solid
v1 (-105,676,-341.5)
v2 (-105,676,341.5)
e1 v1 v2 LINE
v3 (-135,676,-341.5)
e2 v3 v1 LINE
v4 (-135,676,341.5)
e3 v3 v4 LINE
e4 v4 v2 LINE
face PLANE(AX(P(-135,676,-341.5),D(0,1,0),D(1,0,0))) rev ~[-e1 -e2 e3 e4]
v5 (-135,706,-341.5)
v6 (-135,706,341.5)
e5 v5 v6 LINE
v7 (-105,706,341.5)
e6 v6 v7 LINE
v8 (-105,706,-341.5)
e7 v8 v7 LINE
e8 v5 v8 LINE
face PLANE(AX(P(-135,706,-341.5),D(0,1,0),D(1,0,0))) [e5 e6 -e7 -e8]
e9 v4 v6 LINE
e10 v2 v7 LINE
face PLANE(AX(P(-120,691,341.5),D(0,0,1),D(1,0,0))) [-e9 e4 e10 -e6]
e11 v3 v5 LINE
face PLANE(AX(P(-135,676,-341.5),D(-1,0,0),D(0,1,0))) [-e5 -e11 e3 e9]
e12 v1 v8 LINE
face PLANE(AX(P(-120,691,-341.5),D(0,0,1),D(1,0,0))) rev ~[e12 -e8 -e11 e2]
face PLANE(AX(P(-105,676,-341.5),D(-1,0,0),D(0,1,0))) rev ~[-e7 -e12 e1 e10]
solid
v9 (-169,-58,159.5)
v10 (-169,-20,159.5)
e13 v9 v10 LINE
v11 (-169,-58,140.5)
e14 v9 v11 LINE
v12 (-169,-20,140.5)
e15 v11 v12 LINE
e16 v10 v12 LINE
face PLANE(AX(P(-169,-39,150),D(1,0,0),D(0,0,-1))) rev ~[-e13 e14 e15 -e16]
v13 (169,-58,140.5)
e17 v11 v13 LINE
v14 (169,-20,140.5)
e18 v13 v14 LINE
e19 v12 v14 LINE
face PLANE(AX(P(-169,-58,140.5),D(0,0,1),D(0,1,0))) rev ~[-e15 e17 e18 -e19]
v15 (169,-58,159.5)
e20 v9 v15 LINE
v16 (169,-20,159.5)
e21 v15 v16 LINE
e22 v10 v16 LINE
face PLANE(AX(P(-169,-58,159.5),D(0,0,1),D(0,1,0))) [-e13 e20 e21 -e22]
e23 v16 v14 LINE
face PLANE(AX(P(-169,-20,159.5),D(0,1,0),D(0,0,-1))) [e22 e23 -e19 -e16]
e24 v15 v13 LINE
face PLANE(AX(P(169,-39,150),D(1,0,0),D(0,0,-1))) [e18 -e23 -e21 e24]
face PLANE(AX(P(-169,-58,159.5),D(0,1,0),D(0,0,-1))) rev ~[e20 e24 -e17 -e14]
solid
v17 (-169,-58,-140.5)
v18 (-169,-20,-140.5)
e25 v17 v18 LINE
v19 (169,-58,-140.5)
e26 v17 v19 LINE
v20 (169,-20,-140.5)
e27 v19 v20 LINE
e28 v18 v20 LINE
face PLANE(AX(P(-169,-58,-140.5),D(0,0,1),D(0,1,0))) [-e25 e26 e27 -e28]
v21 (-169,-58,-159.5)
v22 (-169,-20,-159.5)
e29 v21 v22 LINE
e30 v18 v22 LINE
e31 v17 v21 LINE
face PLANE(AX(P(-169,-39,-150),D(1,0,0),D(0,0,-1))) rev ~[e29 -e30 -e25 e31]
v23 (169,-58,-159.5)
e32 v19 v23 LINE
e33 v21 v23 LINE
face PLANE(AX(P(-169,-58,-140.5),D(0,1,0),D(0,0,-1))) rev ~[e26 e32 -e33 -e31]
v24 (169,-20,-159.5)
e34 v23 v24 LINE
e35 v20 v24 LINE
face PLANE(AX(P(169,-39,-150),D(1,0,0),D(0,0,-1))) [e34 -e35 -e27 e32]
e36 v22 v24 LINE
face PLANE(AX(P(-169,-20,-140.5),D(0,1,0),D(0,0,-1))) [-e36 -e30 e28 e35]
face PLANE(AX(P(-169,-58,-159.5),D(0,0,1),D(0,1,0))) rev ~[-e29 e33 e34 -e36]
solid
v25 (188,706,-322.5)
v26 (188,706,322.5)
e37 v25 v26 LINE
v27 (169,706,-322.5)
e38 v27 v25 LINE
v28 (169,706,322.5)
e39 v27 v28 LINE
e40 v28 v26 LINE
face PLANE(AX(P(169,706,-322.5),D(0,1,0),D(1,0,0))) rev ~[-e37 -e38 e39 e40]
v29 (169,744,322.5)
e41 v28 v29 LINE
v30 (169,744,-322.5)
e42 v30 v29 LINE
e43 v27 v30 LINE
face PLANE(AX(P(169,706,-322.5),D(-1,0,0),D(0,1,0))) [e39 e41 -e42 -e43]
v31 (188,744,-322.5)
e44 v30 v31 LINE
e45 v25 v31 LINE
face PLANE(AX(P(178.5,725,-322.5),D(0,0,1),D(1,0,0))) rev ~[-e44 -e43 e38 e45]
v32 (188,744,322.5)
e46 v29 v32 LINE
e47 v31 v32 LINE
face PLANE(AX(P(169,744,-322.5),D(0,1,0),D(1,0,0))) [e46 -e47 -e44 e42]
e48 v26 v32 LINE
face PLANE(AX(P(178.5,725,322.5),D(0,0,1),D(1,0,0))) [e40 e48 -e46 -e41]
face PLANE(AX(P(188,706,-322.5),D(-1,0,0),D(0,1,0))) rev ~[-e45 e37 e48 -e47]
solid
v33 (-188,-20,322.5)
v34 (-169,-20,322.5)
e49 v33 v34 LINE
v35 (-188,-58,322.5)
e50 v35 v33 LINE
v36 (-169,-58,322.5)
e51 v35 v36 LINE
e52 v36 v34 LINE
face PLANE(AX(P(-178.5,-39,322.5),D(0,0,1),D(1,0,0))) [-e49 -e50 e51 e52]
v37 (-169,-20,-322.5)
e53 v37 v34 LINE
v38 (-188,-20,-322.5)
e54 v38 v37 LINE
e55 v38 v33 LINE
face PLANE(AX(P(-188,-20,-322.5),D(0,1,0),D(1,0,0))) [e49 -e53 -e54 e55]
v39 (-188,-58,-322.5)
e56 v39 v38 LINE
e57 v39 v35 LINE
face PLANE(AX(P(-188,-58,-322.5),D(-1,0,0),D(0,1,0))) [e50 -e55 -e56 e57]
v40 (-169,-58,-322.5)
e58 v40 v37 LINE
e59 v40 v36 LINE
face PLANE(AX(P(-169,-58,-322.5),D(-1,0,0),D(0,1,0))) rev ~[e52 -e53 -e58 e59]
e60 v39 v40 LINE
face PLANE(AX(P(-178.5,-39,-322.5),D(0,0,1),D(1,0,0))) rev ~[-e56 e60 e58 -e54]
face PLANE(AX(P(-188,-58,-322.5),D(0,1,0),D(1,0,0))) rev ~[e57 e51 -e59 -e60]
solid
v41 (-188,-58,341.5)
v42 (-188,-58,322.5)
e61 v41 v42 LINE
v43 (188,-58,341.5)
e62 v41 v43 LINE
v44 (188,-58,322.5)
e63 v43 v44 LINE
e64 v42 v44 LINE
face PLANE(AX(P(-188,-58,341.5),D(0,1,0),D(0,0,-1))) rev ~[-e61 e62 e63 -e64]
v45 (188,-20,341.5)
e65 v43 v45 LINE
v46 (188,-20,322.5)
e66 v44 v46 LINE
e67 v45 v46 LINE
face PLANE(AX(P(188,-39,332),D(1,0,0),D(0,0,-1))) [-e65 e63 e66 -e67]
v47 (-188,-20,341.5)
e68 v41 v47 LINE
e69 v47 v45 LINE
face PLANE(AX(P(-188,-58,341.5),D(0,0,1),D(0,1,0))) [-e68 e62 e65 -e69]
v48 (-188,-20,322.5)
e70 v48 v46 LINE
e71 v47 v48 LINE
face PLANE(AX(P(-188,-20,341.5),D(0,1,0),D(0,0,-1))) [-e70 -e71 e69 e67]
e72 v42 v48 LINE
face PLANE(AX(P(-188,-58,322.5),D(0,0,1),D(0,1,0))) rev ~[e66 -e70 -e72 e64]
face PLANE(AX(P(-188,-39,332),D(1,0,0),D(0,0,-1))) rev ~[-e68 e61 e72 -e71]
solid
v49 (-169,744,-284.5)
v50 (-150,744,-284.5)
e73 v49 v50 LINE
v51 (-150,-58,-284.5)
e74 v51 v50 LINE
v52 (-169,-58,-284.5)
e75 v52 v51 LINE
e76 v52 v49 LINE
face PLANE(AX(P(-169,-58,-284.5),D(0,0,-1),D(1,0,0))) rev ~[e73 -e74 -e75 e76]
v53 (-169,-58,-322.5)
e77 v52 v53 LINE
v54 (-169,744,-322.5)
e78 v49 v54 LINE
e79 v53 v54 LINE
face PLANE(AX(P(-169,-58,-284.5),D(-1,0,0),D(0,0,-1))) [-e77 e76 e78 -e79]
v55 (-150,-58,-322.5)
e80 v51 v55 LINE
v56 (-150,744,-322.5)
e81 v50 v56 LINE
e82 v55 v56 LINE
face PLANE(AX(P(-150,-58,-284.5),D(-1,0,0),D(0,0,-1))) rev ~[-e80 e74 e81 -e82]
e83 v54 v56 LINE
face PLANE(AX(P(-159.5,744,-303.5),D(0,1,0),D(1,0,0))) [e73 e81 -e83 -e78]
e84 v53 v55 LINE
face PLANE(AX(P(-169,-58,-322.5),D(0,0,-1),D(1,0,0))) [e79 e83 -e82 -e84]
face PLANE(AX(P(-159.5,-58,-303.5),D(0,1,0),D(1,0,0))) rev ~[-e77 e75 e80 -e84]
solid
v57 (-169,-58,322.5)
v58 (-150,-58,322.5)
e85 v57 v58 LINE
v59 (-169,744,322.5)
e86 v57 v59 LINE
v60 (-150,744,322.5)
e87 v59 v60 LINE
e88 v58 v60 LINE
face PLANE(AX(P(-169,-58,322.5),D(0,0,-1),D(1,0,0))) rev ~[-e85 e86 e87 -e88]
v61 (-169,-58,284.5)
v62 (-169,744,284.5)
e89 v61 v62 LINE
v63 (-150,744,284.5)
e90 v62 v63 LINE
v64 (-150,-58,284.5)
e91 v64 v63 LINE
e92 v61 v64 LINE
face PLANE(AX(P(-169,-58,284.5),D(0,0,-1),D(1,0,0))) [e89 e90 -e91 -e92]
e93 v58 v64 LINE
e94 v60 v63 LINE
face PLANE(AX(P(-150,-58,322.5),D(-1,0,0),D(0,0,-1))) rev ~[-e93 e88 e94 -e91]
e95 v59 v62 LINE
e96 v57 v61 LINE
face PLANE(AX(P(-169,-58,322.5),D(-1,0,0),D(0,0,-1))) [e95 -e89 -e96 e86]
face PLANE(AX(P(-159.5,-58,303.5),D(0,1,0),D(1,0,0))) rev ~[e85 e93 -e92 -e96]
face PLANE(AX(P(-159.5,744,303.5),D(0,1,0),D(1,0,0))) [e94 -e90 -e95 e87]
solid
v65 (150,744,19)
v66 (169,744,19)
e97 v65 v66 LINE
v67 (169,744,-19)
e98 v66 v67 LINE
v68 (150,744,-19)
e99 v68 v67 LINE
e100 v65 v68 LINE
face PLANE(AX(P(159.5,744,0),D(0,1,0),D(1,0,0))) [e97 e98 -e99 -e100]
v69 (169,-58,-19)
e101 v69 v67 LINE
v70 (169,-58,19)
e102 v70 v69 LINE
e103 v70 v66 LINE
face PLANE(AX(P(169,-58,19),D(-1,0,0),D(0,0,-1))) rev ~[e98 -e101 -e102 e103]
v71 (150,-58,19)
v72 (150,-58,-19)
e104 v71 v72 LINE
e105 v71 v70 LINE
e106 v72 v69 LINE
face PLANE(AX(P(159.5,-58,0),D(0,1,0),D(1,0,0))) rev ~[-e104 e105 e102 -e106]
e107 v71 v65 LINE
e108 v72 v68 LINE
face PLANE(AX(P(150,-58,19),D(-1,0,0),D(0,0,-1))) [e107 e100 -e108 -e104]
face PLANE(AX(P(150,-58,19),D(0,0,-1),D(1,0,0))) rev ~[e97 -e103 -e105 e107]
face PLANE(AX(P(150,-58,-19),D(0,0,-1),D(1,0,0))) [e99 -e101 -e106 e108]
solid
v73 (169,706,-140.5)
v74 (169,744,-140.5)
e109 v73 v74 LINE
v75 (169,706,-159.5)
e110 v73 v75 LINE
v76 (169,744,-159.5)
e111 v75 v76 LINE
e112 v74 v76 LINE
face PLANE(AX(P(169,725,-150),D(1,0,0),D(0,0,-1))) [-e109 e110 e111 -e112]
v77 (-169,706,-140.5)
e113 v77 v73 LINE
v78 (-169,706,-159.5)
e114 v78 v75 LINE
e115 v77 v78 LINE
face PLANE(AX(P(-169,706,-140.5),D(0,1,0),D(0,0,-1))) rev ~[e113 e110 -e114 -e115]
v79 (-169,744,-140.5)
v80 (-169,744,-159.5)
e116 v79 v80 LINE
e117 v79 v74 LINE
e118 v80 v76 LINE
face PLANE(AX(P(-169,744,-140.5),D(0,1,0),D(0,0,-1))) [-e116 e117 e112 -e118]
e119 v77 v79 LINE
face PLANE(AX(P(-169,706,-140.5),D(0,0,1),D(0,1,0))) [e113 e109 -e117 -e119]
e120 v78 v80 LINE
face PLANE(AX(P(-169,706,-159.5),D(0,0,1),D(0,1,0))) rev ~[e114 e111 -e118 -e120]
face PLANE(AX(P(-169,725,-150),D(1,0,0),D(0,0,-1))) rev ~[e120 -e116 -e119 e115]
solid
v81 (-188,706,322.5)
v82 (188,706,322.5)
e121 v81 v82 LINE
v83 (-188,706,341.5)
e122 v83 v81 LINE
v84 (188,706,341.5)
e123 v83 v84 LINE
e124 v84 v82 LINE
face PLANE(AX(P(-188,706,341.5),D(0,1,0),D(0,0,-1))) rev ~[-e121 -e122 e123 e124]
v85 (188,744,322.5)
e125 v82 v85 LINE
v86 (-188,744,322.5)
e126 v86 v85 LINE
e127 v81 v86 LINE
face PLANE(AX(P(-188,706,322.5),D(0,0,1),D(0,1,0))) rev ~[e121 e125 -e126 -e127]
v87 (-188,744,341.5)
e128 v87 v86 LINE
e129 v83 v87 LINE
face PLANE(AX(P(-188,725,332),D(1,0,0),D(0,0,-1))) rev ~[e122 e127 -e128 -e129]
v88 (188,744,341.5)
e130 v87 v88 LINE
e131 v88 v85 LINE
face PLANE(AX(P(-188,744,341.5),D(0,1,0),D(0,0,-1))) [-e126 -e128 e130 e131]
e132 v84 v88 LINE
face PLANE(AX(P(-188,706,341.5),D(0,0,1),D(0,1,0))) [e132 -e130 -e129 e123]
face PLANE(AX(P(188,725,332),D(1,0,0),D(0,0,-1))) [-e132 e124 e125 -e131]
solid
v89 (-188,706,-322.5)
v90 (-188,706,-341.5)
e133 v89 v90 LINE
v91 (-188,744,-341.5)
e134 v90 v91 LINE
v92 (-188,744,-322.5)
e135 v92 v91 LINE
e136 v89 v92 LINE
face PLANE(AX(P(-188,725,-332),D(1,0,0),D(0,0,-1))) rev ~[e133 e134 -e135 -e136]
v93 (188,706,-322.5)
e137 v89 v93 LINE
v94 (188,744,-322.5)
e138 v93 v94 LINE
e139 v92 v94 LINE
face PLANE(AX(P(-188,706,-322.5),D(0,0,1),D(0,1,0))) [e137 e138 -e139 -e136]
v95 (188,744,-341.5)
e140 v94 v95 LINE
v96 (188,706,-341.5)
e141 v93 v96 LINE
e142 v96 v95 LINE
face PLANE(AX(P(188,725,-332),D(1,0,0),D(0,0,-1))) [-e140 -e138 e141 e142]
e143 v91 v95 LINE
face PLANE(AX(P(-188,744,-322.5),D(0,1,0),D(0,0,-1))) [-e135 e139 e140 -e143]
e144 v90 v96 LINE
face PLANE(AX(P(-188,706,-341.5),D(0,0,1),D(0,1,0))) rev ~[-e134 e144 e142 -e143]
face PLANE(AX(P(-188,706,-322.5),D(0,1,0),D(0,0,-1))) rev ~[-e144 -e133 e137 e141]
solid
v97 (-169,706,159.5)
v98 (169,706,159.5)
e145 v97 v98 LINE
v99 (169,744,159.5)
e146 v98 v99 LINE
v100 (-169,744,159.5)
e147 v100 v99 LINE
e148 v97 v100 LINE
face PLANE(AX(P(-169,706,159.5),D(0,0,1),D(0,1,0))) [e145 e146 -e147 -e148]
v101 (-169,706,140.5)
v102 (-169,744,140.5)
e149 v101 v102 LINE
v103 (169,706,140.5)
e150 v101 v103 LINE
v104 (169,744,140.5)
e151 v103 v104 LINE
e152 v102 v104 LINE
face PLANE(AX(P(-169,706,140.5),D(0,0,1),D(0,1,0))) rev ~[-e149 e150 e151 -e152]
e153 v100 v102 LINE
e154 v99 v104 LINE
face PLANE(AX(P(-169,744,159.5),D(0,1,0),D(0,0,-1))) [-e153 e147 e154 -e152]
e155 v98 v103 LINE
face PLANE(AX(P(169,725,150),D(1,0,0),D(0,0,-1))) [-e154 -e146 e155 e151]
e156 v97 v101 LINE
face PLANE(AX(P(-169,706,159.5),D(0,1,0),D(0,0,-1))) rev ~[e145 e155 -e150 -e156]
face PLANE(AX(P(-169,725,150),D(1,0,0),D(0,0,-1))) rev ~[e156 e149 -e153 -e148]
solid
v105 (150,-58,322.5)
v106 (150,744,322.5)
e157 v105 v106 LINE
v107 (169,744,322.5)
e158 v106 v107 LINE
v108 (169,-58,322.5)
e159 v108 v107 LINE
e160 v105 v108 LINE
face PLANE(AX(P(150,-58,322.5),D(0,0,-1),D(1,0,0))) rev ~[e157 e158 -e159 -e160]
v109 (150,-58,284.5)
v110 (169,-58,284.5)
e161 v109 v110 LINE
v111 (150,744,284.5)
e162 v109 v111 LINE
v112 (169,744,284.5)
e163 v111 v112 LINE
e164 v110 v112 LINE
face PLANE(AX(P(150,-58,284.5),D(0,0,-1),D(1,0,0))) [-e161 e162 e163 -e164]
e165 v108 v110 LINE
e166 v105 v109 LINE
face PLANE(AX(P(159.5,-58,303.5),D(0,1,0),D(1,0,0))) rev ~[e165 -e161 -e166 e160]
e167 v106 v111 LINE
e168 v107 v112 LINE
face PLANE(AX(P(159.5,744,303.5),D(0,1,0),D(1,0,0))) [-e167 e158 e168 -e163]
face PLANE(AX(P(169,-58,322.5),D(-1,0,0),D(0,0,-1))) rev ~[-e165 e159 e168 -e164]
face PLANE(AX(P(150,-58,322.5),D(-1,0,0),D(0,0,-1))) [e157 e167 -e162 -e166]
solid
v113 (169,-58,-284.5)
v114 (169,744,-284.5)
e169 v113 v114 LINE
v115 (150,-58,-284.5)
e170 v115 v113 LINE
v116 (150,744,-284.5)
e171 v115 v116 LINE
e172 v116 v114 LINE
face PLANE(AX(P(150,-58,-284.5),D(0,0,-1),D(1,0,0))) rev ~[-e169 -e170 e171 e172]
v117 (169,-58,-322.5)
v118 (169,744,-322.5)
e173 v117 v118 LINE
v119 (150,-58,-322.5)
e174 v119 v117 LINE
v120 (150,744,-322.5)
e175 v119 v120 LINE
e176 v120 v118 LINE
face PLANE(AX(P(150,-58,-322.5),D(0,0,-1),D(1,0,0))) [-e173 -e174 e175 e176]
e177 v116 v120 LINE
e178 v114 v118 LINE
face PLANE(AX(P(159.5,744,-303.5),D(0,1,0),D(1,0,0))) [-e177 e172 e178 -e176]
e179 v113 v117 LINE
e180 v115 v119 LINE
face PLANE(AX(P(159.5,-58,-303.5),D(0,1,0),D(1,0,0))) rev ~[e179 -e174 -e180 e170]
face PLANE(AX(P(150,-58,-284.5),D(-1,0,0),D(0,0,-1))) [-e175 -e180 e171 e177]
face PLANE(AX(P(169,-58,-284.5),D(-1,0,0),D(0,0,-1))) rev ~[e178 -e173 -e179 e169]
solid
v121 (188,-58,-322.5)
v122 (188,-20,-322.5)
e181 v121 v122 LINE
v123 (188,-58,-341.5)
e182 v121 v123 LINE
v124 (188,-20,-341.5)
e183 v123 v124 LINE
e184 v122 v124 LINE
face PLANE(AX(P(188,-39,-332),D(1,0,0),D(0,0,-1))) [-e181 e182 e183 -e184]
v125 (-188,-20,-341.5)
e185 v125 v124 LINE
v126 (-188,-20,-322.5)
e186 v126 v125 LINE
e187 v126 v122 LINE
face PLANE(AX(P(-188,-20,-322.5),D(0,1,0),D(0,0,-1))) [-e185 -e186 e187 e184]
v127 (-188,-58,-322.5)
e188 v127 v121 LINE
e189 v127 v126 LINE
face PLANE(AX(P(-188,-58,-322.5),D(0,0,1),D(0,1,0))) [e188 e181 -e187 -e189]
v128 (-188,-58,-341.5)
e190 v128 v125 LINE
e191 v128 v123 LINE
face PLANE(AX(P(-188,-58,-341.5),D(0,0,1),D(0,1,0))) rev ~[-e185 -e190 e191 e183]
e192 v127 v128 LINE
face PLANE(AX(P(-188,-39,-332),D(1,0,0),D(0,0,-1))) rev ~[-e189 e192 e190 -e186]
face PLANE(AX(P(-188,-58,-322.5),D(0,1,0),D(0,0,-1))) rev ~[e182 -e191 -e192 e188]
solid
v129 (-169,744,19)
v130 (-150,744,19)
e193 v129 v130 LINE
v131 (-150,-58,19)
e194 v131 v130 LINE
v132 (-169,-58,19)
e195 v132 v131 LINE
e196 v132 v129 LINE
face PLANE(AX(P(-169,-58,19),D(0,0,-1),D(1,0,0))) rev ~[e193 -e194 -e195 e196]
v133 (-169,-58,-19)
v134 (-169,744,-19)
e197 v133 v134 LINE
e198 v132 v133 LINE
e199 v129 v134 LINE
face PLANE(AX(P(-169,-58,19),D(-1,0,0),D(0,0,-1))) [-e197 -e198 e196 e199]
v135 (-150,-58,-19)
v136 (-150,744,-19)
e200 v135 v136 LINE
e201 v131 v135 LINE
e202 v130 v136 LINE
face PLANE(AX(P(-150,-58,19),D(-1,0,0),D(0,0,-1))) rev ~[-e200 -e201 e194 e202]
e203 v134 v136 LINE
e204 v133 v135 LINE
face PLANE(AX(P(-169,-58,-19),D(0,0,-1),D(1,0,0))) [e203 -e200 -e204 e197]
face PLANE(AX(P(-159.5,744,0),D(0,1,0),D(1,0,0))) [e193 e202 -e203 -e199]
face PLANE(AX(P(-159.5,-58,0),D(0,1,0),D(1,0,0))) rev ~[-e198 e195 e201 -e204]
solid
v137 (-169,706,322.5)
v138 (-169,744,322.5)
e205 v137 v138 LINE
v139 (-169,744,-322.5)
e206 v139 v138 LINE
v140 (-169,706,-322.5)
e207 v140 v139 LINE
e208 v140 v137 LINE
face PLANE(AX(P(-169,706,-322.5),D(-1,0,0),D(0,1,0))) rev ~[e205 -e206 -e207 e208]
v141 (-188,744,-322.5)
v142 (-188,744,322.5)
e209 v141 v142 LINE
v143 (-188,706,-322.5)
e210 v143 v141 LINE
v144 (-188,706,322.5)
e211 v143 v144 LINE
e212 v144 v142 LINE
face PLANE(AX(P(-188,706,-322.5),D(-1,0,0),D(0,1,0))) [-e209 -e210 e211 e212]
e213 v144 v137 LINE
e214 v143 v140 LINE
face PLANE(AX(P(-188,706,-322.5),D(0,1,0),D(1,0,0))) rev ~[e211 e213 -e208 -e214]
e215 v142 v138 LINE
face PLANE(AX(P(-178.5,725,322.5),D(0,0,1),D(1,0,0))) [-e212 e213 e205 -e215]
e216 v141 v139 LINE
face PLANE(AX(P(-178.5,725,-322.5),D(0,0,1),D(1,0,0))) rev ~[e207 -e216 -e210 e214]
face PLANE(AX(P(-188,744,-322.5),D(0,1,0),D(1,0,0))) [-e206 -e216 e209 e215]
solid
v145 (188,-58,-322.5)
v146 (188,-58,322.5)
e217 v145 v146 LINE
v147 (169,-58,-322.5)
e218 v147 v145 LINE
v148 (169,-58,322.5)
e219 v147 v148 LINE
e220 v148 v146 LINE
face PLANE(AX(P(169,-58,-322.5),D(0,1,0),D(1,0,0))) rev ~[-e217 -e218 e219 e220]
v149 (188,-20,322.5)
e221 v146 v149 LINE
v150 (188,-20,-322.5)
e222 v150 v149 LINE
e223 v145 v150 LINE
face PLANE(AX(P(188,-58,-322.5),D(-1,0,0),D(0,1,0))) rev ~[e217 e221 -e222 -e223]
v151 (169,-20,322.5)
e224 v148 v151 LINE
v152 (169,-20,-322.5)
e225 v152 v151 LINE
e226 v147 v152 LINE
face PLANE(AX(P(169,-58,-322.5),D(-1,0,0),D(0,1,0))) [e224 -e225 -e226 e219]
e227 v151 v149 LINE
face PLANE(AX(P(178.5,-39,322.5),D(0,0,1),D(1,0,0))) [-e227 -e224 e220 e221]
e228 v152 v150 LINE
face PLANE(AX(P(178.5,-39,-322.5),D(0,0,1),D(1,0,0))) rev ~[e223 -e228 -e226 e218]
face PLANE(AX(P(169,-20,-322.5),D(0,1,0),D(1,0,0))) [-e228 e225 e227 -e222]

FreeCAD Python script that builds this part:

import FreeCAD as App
import Part
import Sketcher


def add_polygon(sketch, points):
    """Adds a closed chain of lines whose ends are joined by coincident constraints."""
    first, n = sketch.GeometryCount, len(points)
    for a, b in zip(points, points[1:] + points[:1]):
        sketch.addGeometry(Part.LineSegment(App.Vector(*a, 0), App.Vector(*b, 0)), False)
    for i in range(n):
        sketch.addConstraint(Sketcher.Constraint("Coincident", first + i, 2, first + (i + 1) % n, 1))

doc = App.newDocument("Part")
body = doc.addObject("PartDesign::Body", "Body")

# Sketch on XY plane
sketch1 = doc.addObject("Sketcher::SketchObject", "Sketch")
body.addObject(sketch1)
sketch1.AttachmentSupport = (doc.XY_Plane, [""])
sketch1.MapMode = "FlatFace"
add_polygon(sketch1, [(-188, -20), (-188, -58), (-169, -58), (-169, -20)])  # lines 0-3
sketch1.addConstraint(Sketcher.Constraint("Vertical", 0))
sketch1.addConstraint(Sketcher.Constraint("Horizontal", 1))
sketch1.addConstraint(Sketcher.Constraint("Vertical", 2))
sketch1.addConstraint(Sketcher.Constraint("Horizontal", 3))
sketch1.addConstraint(Sketcher.Constraint("DistanceX", 1, 1, 1, 2, 19.0))
sketch1.addConstraint(Sketcher.Constraint("DistanceY", 0, 2, 0, 1, 38.0))
sketch1.addConstraint(Sketcher.Constraint("DistanceX", 0, 2, -1, 1, 188.0))
sketch1.addConstraint(Sketcher.Constraint("DistanceY", 0, 2, -1, 1, 58.0))
pad1 = doc.addObject("PartDesign::Pad", "Pad")
body.addObject(pad1)
pad1.Profile = sketch1
pad1.Type = "TwoLengths"
pad1.Length = 322.5
pad1.Length2 = 322.5
body2 = doc.addObject("PartDesign::Body", "Body001")

# Sketch on XY plane
sketch2 = doc.addObject("Sketcher::SketchObject", "Sketch001")
body2.addObject(sketch2)
sketch2.AttachmentSupport = (doc.getObject("XY_Plane001"), [""])
sketch2.MapMode = "FlatFace"
add_polygon(sketch2, [(169, -20), (169, -58), (188, -58), (188, -20)])  # lines 0-3
sketch2.addConstraint(Sketcher.Constraint("Vertical", 0))
sketch2.addConstraint(Sketcher.Constraint("Horizontal", 1))
sketch2.addConstraint(Sketcher.Constraint("Vertical", 2))
sketch2.addConstraint(Sketcher.Constraint("Horizontal", 3))
sketch2.addConstraint(Sketcher.Constraint("DistanceX", 1, 1, 1, 2, 19.0))
sketch2.addConstraint(Sketcher.Constraint("DistanceY", 0, 2, 0, 1, 38.0))
sketch2.addConstraint(Sketcher.Constraint("DistanceX", -1, 1, 0, 2, 169.0))
sketch2.addConstraint(Sketcher.Constraint("DistanceY", 0, 2, -1, 1, 58.0))
pad2 = doc.addObject("PartDesign::Pad", "Pad001")
body2.addObject(pad2)
pad2.Profile = sketch2
pad2.Type = "TwoLengths"
pad2.Length = 322.5
pad2.Length2 = 322.5
body3 = doc.addObject("PartDesign::Body", "Body002")

# Sketch on XY plane
sketch3 = doc.addObject("Sketcher::SketchObject", "Sketch002")
body3.addObject(sketch3)
sketch3.AttachmentSupport = (doc.getObject("XY_Plane002"), [""])
sketch3.MapMode = "FlatFace"
add_polygon(sketch3, [(169, 744), (169, 706), (188, 706), (188, 744)])  # lines 0-3
sketch3.addConstraint(Sketcher.Constraint("Vertical", 0))
sketch3.addConstraint(Sketcher.Constraint("Horizontal", 1))
sketch3.addConstraint(Sketcher.Constraint("Vertical", 2))
sketch3.addConstraint(Sketcher.Constraint("Horizontal", 3))
sketch3.addConstraint(Sketcher.Constraint("DistanceX", 1, 1, 1, 2, 19.0))
sketch3.addConstraint(Sketcher.Constraint("DistanceY", 0, 2, 0, 1, 38.0))
sketch3.addConstraint(Sketcher.Constraint("DistanceX", -1, 1, 0, 2, 169.0))
sketch3.addConstraint(Sketcher.Constraint("DistanceY", -1, 1, 0, 2, 706.0))
pad3 = doc.addObject("PartDesign::Pad", "Pad002")
body3.addObject(pad3)
pad3.Profile = sketch3
pad3.Type = "TwoLengths"
pad3.Length = 322.5
pad3.Length2 = 322.5
body4 = doc.addObject("PartDesign::Body", "Body003")

# Sketch on XY plane
sketch4 = doc.addObject("Sketcher::SketchObject", "Sketch003")
body4.addObject(sketch4)
sketch4.AttachmentSupport = (doc.getObject("XY_Plane003"), [""])
sketch4.MapMode = "FlatFace"
add_polygon(sketch4, [(-188, 744), (-188, 706), (-169, 706), (-169, 744)])  # lines 0-3
sketch4.addConstraint(Sketcher.Constraint("Vertical", 0))
sketch4.addConstraint(Sketcher.Constraint("Horizontal", 1))
sketch4.addConstraint(Sketcher.Constraint("Vertical", 2))
sketch4.addConstraint(Sketcher.Constraint("Horizontal", 3))
sketch4.addConstraint(Sketcher.Constraint("DistanceX", 1, 1, 1, 2, 19.0))
sketch4.addConstraint(Sketcher.Constraint("DistanceY", 0, 2, 0, 1, 38.0))
sketch4.addConstraint(Sketcher.Constraint("DistanceX", 0, 2, -1, 1, 188.0))
sketch4.addConstraint(Sketcher.Constraint("DistanceY", -1, 1, 0, 2, 706.0))
pad4 = doc.addObject("PartDesign::Pad", "Pad003")
body4.addObject(pad4)
pad4.Profile = sketch4
pad4.Type = "TwoLengths"
pad4.Length = 322.5
pad4.Length2 = 322.5
body5 = doc.addObject("PartDesign::Body", "Body004")

# Sketch on YZ plane
sketch5 = doc.addObject("Sketcher::SketchObject", "Sketch004")
body5.addObject(sketch5)
sketch5.AttachmentSupport = (doc.getObject("YZ_Plane004"), [""])
sketch5.MapMode = "FlatFace"
add_polygon(sketch5, [(-20, 341.5), (-58, 341.5), (-58, 322.5), (-20, 322.5)])  # lines 0-3
sketch5.addConstraint(Sketcher.Constraint("Horizontal", 0))
sketch5.addConstraint(Sketcher.Constraint("Vertical", 1))
sketch5.addConstraint(Sketcher.Constraint("Horizontal", 2))
sketch5.addConstraint(Sketcher.Constraint("Vertical", 3))
sketch5.addConstraint(Sketcher.Constraint("DistanceX", 0, 2, 0, 1, 38.0))
sketch5.addConstraint(Sketcher.Constraint("DistanceY", 1, 2, 1, 1, 19.0))
sketch5.addConstraint(Sketcher.Constraint("DistanceX", 0, 2, -1, 1, 58.0))
sketch5.addConstraint(Sketcher.Constraint("DistanceY", -1, 1, 0, 2, 341.5))
pad5 = doc.addObject("PartDesign::Pad", "Pad004")
body5.addObject(pad5)
pad5.Profile = sketch5
pad5.Type = "TwoLengths"
pad5.Length = 188
pad5.Length2 = 188
body6 = doc.addObject("PartDesign::Body", "Body005")

# Sketch on YZ plane
sketch6 = doc.addObject("Sketcher::SketchObject", "Sketch005")
body6.addObject(sketch6)
sketch6.AttachmentSupport = (doc.getObject("YZ_Plane005"), [""])
sketch6.MapMode = "FlatFace"
add_polygon(sketch6, [(744, 341.5), (706, 341.5), (706, 322.5), (744, 322.5)])  # lines 0-3
sketch6.addConstraint(Sketcher.Constraint("Horizontal", 0))
sketch6.addConstraint(Sketcher.Constraint("Vertical", 1))
sketch6.addConstraint(Sketcher.Constraint("Horizontal", 2))
sketch6.addConstraint(Sketcher.Constraint("Vertical", 3))
sketch6.addConstraint(Sketcher.Constraint("DistanceX", 0, 2, 0, 1, 38.0))
sketch6.addConstraint(Sketcher.Constraint("DistanceY", 1, 2, 1, 1, 19.0))
sketch6.addConstraint(Sketcher.Constraint("DistanceX", -1, 1, 0, 2, 706.0))
sketch6.addConstraint(Sketcher.Constraint("DistanceY", -1, 1, 0, 2, 341.5))
pad6 = doc.addObject("PartDesign::Pad", "Pad005")
body6.addObject(pad6)
pad6.Profile = sketch6
pad6.Type = "TwoLengths"
pad6.Length = 188
pad6.Length2 = 188
body7 = doc.addObject("PartDesign::Body", "Body006")

# Sketch on YZ plane
sketch7 = doc.addObject("Sketcher::SketchObject", "Sketch006")
body7.addObject(sketch7)
sketch7.AttachmentSupport = (doc.getObject("YZ_Plane006"), [""])
sketch7.MapMode = "FlatFace"
add_polygon(sketch7, [(744, -322.5), (706, -322.5), (706, -341.5), (744, -341.5)])  # lines 0-3
sketch7.addConstraint(Sketcher.Constraint("Horizontal", 0))
sketch7.addConstraint(Sketcher.Constraint("Vertical", 1))
sketch7.addConstraint(Sketcher.Constraint("Horizontal", 2))
sketch7.addConstraint(Sketcher.Constraint("Vertical", 3))
sketch7.addConstraint(Sketcher.Constraint("DistanceX", 0, 2, 0, 1, 38.0))
sketch7.addConstraint(Sketcher.Constraint("DistanceY", 1, 2, 1, 1, 19.0))
sketch7.addConstraint(Sketcher.Constraint("DistanceX", -1, 1, 0, 2, 706.0))
sketch7.addConstraint(Sketcher.Constraint("DistanceY", 0, 2, -1, 1, 322.5))
pad7 = doc.addObject("PartDesign::Pad", "Pad006")
body7.addObject(pad7)
pad7.Profile = sketch7
pad7.Type = "TwoLengths"
pad7.Length = 188
pad7.Length2 = 188
body8 = doc.addObject("PartDesign::Body", "Body007")

# Sketch on YZ plane
sketch8 = doc.addObject("Sketcher::SketchObject", "Sketch007")
body8.addObject(sketch8)
sketch8.AttachmentSupport = (doc.getObject("YZ_Plane007"), [""])
sketch8.MapMode = "FlatFace"
add_polygon(sketch8, [(-20, -322.5), (-58, -322.5), (-58, -341.5), (-20, -341.5)])  # lines 0-3
sketch8.addConstraint(Sketcher.Constraint("Horizontal", 0))
sketch8.addConstraint(Sketcher.Constraint("Vertical", 1))
sketch8.addConstraint(Sketcher.Constraint("Horizontal", 2))
sketch8.addConstraint(Sketcher.Constraint("Vertical", 3))
sketch8.addConstraint(Sketcher.Constraint("DistanceX", 0, 2, 0, 1, 38.0))
sketch8.addConstraint(Sketcher.Constraint("DistanceY", 1, 2, 1, 1, 19.0))
sketch8.addConstraint(Sketcher.Constraint("DistanceX", 0, 2, -1, 1, 58.0))
sketch8.addConstraint(Sketcher.Constraint("DistanceY", 0, 2, -1, 1, 322.5))
pad8 = doc.addObject("PartDesign::Pad", "Pad007")
body8.addObject(pad8)
pad8.Profile = sketch8
pad8.Type = "TwoLengths"
pad8.Length = 188
pad8.Length2 = 188
body9 = doc.addObject("PartDesign::Body", "Body008")

# Sketch on XZ plane
sketch9 = doc.addObject("Sketcher::SketchObject", "Sketch008")
body9.addObject(sketch9)
sketch9.AttachmentSupport = (doc.getObject("XZ_Plane008"), [""])
sketch9.MapMode = "FlatFace"
sketch9.AttachmentOffset = App.Placement(App.Vector(0, 0, 58), App.Rotation())
add_polygon(sketch9, [(-169, -322.5), (-169, -284.5), (-150, -284.5), (-150, -322.5)])  # lines 0-3
sketch9.addConstraint(Sketcher.Constraint("Vertical", 0))
sketch9.addConstraint(Sketcher.Constraint("Horizontal", 1))
sketch9.addConstraint(Sketcher.Constraint("Vertical", 2))
sketch9.addConstraint(Sketcher.Constraint("Horizontal", 3))
sketch9.addConstraint(Sketcher.Constraint("DistanceX", 1, 1, 1, 2, 19.0))
sketch9.addConstraint(Sketcher.Constraint("DistanceY", 0, 1, 0, 2, 38.0))
sketch9.addConstraint(Sketcher.Constraint("DistanceX", 0, 2, -1, 1, 169.0))
sketch9.addConstraint(Sketcher.Constraint("DistanceY", 0, 2, -1, 1, 284.5))
pad9 = doc.addObject("PartDesign::Pad", "Pad008")
body9.addObject(pad9)
pad9.Profile = sketch9
pad9.Length = 802
pad9.Reversed = True
body10 = doc.addObject("PartDesign::Body", "Body009")

# Sketch on XZ plane
sketch10 = doc.addObject("Sketcher::SketchObject", "Sketch009")
body10.addObject(sketch10)
sketch10.AttachmentSupport = (doc.getObject("XZ_Plane009"), [""])
sketch10.MapMode = "FlatFace"
sketch10.AttachmentOffset = App.Placement(App.Vector(0, 0, 58), App.Rotation())
add_polygon(sketch10, [(-169, 284.5), (-169, 322.5), (-150, 322.5), (-150, 284.5)])  # lines 0-3
sketch10.addConstraint(Sketcher.Constraint("Vertical", 0))
sketch10.addConstraint(Sketcher.Constraint("Horizontal", 1))
sketch10.addConstraint(Sketcher.Constraint("Vertical", 2))
sketch10.addConstraint(Sketcher.Constraint("Horizontal", 3))
sketch10.addConstraint(Sketcher.Constraint("DistanceX", 1, 1, 1, 2, 19.0))
sketch10.addConstraint(Sketcher.Constraint("DistanceY", 0, 1, 0, 2, 38.0))
sketch10.addConstraint(Sketcher.Constraint("DistanceX", 0, 2, -1, 1, 169.0))
sketch10.addConstraint(Sketcher.Constraint("DistanceY", -1, 1, 0, 2, 322.5))
pad10 = doc.addObject("PartDesign::Pad", "Pad009")
body10.addObject(pad10)
pad10.Profile = sketch10
pad10.Length = 802
pad10.Reversed = True
body11 = doc.addObject("PartDesign::Body", "Body010")

# Sketch on XZ plane
sketch11 = doc.addObject("Sketcher::SketchObject", "Sketch010")
body11.addObject(sketch11)
sketch11.AttachmentSupport = (doc.getObject("XZ_Plane010"), [""])
sketch11.MapMode = "FlatFace"
sketch11.AttachmentOffset = App.Placement(App.Vector(0, 0, 58), App.Rotation())
add_polygon(sketch11, [(150, -322.5), (150, -284.5), (169, -284.5), (169, -322.5)])  # lines 0-3
sketch11.addConstraint(Sketcher.Constraint("Vertical", 0))
sketch11.addConstraint(Sketcher.Constraint("Horizontal", 1))
sketch11.addConstraint(Sketcher.Constraint("Vertical", 2))
sketch11.addConstraint(Sketcher.Constraint("Horizontal", 3))
sketch11.addConstraint(Sketcher.Constraint("DistanceX", 1, 1, 1, 2, 19.0))
sketch11.addConstraint(Sketcher.Constraint("DistanceY", 0, 1, 0, 2, 38.0))
sketch11.addConstraint(Sketcher.Constraint("DistanceX", -1, 1, 0, 2, 150.0))
sketch11.addConstraint(Sketcher.Constraint("DistanceY", 0, 2, -1, 1, 284.5))
pad11 = doc.addObject("PartDesign::Pad", "Pad010")
body11.addObject(pad11)
pad11.Profile = sketch11
pad11.Length = 802
pad11.Reversed = True
body12 = doc.addObject("PartDesign::Body", "Body011")

# Sketch on XZ plane
sketch12 = doc.addObject("Sketcher::SketchObject", "Sketch011")
body12.addObject(sketch12)
sketch12.AttachmentSupport = (doc.getObject("XZ_Plane011"), [""])
sketch12.MapMode = "FlatFace"
sketch12.AttachmentOffset = App.Placement(App.Vector(0, 0, 58), App.Rotation())
add_polygon(sketch12, [(150, 284.5), (150, 322.5), (169, 322.5), (169, 284.5)])  # lines 0-3
sketch12.addConstraint(Sketcher.Constraint("Vertical", 0))
sketch12.addConstraint(Sketcher.Constraint("Horizontal", 1))
sketch12.addConstraint(Sketcher.Constraint("Vertical", 2))
sketch12.addConstraint(Sketcher.Constraint("Horizontal", 3))
sketch12.addConstraint(Sketcher.Constraint("DistanceX", 1, 1, 1, 2, 19.0))
sketch12.addConstraint(Sketcher.Constraint("DistanceY", 0, 1, 0, 2, 38.0))
sketch12.addConstraint(Sketcher.Constraint("DistanceX", -1, 1, 0, 2, 150.0))
sketch12.addConstraint(Sketcher.Constraint("DistanceY", -1, 1, 0, 2, 322.5))
pad12 = doc.addObject("PartDesign::Pad", "Pad011")
body12.addObject(pad12)
pad12.Profile = sketch12
pad12.Length = 802
pad12.Reversed = True
body13 = doc.addObject("PartDesign::Body", "Body012")

# Sketch on XZ plane
sketch13 = doc.addObject("Sketcher::SketchObject", "Sketch012")
body13.addObject(sketch13)
sketch13.AttachmentSupport = (doc.getObject("XZ_Plane012"), [""])
sketch13.MapMode = "FlatFace"
sketch13.AttachmentOffset = App.Placement(App.Vector(0, 0, 58), App.Rotation())
add_polygon(sketch13, [(-169, -19), (-169, 19), (-150, 19), (-150, -19)])  # lines 0-3
sketch13.addConstraint(Sketcher.Constraint("Vertical", 0))
sketch13.addConstraint(Sketcher.Constraint("Horizontal", 1))
sketch13.addConstraint(Sketcher.Constraint("Vertical", 2))
sketch13.addConstraint(Sketcher.Constraint("Horizontal", 3))
sketch13.addConstraint(Sketcher.Constraint("DistanceX", 1, 1, 1, 2, 19.0))
sketch13.addConstraint(Sketcher.Constraint("DistanceY", 0, 1, 0, 2, 38.0))
sketch13.addConstraint(Sketcher.Constraint("DistanceX", 0, 2, -1, 1, 169.0))
sketch13.addConstraint(Sketcher.Constraint("DistanceY", -1, 1, 0, 2, 19.0))
pad13 = doc.addObject("PartDesign::Pad", "Pad012")
body13.addObject(pad13)
pad13.Profile = sketch13
pad13.Length = 802
pad13.Reversed = True
body14 = doc.addObject("PartDesign::Body", "Body013")

# Sketch on XZ plane
sketch14 = doc.addObject("Sketcher::SketchObject", "Sketch013")
body14.addObject(sketch14)
sketch14.AttachmentSupport = (doc.getObject("XZ_Plane013"), [""])
sketch14.MapMode = "FlatFace"
sketch14.AttachmentOffset = App.Placement(App.Vector(0, 0, 58), App.Rotation())
add_polygon(sketch14, [(150, -19), (150, 19), (169, 19), (169, -19)])  # lines 0-3
sketch14.addConstraint(Sketcher.Constraint("Vertical", 0))
sketch14.addConstraint(Sketcher.Constraint("Horizontal", 1))
sketch14.addConstraint(Sketcher.Constraint("Vertical", 2))
sketch14.addConstraint(Sketcher.Constraint("Horizontal", 3))
sketch14.addConstraint(Sketcher.Constraint("DistanceX", 1, 1, 1, 2, 19.0))
sketch14.addConstraint(Sketcher.Constraint("DistanceY", 0, 1, 0, 2, 38.0))
sketch14.addConstraint(Sketcher.Constraint("DistanceX", -1, 1, 0, 2, 150.0))
sketch14.addConstraint(Sketcher.Constraint("DistanceY", -1, 1, 0, 2, 19.0))
pad14 = doc.addObject("PartDesign::Pad", "Pad013")
body14.addObject(pad14)
pad14.Profile = sketch14
pad14.Length = 802
pad14.Reversed = True
body15 = doc.addObject("PartDesign::Body", "Body014")

# Sketch on XY plane
sketch15 = doc.addObject("Sketcher::SketchObject", "Sketch014")
body15.addObject(sketch15)
sketch15.AttachmentSupport = (doc.getObject("XY_Plane014"), [""])
sketch15.MapMode = "FlatFace"
sketch15.AttachmentOffset = App.Placement(App.Vector(0, 0, -341.5), App.Rotation())
add_polygon(sketch15, [(-135, 706), (-135, 676), (-105, 676), (-105, 706)])  # lines 0-3
sketch15.addConstraint(Sketcher.Constraint("Vertical", 0))
sketch15.addConstraint(Sketcher.Constraint("Horizontal", 1))
sketch15.addConstraint(Sketcher.Constraint("Vertical", 2))
sketch15.addConstraint(Sketcher.Constraint("Horizontal", 3))
sketch15.addConstraint(Sketcher.Constraint("Equal", 3, 0))
sketch15.addConstraint(Sketcher.Constraint("DistanceX", 1, 1, 1, 2, 30.0))
sketch15.addConstraint(Sketcher.Constraint("DistanceX", 0, 2, -1, 1, 135.0))
sketch15.addConstraint(Sketcher.Constraint("DistanceY", -1, 1, 0, 2, 676.0))
pad15 = doc.addObject("PartDesign::Pad", "Pad014")
body15.addObject(pad15)
pad15.Profile = sketch15
pad15.Length = 683
body16 = doc.addObject("PartDesign::Body", "Body015")

# Sketch on YZ plane
sketch16 = doc.addObject("Sketcher::SketchObject", "Sketch015")
body16.addObject(sketch16)
sketch16.AttachmentSupport = (doc.getObject("YZ_Plane015"), [""])
sketch16.MapMode = "FlatFace"
add_polygon(sketch16, [(744, 159.5), (706, 159.5), (706, 140.5), (744, 140.5)])  # lines 0-3
sketch16.addConstraint(Sketcher.Constraint("Horizontal", 0))
sketch16.addConstraint(Sketcher.Constraint("Vertical", 1))
sketch16.addConstraint(Sketcher.Constraint("Horizontal", 2))
sketch16.addConstraint(Sketcher.Constraint("Vertical", 3))
sketch16.addConstraint(Sketcher.Constraint("DistanceX", 0, 2, 0, 1, 38.0))
sketch16.addConstraint(Sketcher.Constraint("DistanceY", 1, 2, 1, 1, 19.0))
sketch16.addConstraint(Sketcher.Constraint("DistanceX", -1, 1, 0, 2, 706.0))
sketch16.addConstraint(Sketcher.Constraint("DistanceY", -1, 1, 0, 2, 159.5))
pad16 = doc.addObject("PartDesign::Pad", "Pad015")
body16.addObject(pad16)
pad16.Profile = sketch16
pad16.Type = "TwoLengths"
pad16.Length = 169
pad16.Length2 = 169
body17 = doc.addObject("PartDesign::Body", "Body016")

# Sketch on YZ plane
sketch17 = doc.addObject("Sketcher::SketchObject", "Sketch016")
body17.addObject(sketch17)
sketch17.AttachmentSupport = (doc.getObject("YZ_Plane016"), [""])
sketch17.MapMode = "FlatFace"
add_polygon(sketch17, [(-20, 159.5), (-58, 159.5), (-58, 140.5), (-20, 140.5)])  # lines 0-3
sketch17.addConstraint(Sketcher.Constraint("Horizontal", 0))
sketch17.addConstraint(Sketcher.Constraint("Vertical", 1))
sketch17.addConstraint(Sketcher.Constraint("Horizontal", 2))
sketch17.addConstraint(Sketcher.Constraint("Vertical", 3))
sketch17.addConstraint(Sketcher.Constraint("DistanceX", 0, 2, 0, 1, 38.0))
sketch17.addConstraint(Sketcher.Constraint("DistanceY", 1, 2, 1, 1, 19.0))
sketch17.addConstraint(Sketcher.Constraint("DistanceX", 0, 2, -1, 1, 58.0))
sketch17.addConstraint(Sketcher.Constraint("DistanceY", -1, 1, 0, 2, 159.5))
pad17 = doc.addObject("PartDesign::Pad", "Pad016")
body17.addObject(pad17)
pad17.Profile = sketch17
pad17.Type = "TwoLengths"
pad17.Length = 169
pad17.Length2 = 169
body18 = doc.addObject("PartDesign::Body", "Body017")

# Sketch on YZ plane
sketch18 = doc.addObject("Sketcher::SketchObject", "Sketch017")
body18.addObject(sketch18)
sketch18.AttachmentSupport = (doc.getObject("YZ_Plane017"), [""])
sketch18.MapMode = "FlatFace"
add_polygon(sketch18, [(-20, -140.5), (-58, -140.5), (-58, -159.5), (-20, -159.5)])  # lines 0-3
sketch18.addConstraint(Sketcher.Constraint("Horizontal", 0))
sketch18.addConstraint(Sketcher.Constraint("Vertical", 1))
sketch18.addConstraint(Sketcher.Constraint("Horizontal", 2))
sketch18.addConstraint(Sketcher.Constraint("Vertical", 3))
sketch18.addConstraint(Sketcher.Constraint("DistanceX", 0, 2, 0, 1, 38.0))
sketch18.addConstraint(Sketcher.Constraint("DistanceY", 1, 2, 1, 1, 19.0))
sketch18.addConstraint(Sketcher.Constraint("DistanceX", 0, 2, -1, 1, 58.0))
sketch18.addConstraint(Sketcher.Constraint("DistanceY", 0, 2, -1, 1, 140.5))
pad18 = doc.addObject("PartDesign::Pad", "Pad017")
body18.addObject(pad18)
pad18.Profile = sketch18
pad18.Type = "TwoLengths"
pad18.Length = 169
pad18.Length2 = 169
body19 = doc.addObject("PartDesign::Body", "Body018")

# Sketch on YZ plane
sketch19 = doc.addObject("Sketcher::SketchObject", "Sketch018")
body19.addObject(sketch19)
sketch19.AttachmentSupport = (doc.getObject("YZ_Plane018"), [""])
sketch19.MapMode = "FlatFace"
add_polygon(sketch19, [(744, -140.5), (706, -140.5), (706, -159.5), (744, -159.5)])  # lines 0-3
sketch19.addConstraint(Sketcher.Constraint("Horizontal", 0))
sketch19.addConstraint(Sketcher.Constraint("Vertical", 1))
sketch19.addConstraint(Sketcher.Constraint("Horizontal", 2))
sketch19.addConstraint(Sketcher.Constraint("Vertical", 3))
sketch19.addConstraint(Sketcher.Constraint("DistanceX", 0, 2, 0, 1, 38.0))
sketch19.addConstraint(Sketcher.Constraint("DistanceY", 1, 2, 1, 1, 19.0))
sketch19.addConstraint(Sketcher.Constraint("DistanceX", -1, 1, 0, 2, 706.0))
sketch19.addConstraint(Sketcher.Constraint("DistanceY", 0, 2, -1, 1, 140.5))
pad19 = doc.addObject("PartDesign::Pad", "Pad018")
body19.addObject(pad19)
pad19.Profile = sketch19
pad19.Type = "TwoLengths"
pad19.Length = 169
pad19.Length2 = 169

doc.recompute()
